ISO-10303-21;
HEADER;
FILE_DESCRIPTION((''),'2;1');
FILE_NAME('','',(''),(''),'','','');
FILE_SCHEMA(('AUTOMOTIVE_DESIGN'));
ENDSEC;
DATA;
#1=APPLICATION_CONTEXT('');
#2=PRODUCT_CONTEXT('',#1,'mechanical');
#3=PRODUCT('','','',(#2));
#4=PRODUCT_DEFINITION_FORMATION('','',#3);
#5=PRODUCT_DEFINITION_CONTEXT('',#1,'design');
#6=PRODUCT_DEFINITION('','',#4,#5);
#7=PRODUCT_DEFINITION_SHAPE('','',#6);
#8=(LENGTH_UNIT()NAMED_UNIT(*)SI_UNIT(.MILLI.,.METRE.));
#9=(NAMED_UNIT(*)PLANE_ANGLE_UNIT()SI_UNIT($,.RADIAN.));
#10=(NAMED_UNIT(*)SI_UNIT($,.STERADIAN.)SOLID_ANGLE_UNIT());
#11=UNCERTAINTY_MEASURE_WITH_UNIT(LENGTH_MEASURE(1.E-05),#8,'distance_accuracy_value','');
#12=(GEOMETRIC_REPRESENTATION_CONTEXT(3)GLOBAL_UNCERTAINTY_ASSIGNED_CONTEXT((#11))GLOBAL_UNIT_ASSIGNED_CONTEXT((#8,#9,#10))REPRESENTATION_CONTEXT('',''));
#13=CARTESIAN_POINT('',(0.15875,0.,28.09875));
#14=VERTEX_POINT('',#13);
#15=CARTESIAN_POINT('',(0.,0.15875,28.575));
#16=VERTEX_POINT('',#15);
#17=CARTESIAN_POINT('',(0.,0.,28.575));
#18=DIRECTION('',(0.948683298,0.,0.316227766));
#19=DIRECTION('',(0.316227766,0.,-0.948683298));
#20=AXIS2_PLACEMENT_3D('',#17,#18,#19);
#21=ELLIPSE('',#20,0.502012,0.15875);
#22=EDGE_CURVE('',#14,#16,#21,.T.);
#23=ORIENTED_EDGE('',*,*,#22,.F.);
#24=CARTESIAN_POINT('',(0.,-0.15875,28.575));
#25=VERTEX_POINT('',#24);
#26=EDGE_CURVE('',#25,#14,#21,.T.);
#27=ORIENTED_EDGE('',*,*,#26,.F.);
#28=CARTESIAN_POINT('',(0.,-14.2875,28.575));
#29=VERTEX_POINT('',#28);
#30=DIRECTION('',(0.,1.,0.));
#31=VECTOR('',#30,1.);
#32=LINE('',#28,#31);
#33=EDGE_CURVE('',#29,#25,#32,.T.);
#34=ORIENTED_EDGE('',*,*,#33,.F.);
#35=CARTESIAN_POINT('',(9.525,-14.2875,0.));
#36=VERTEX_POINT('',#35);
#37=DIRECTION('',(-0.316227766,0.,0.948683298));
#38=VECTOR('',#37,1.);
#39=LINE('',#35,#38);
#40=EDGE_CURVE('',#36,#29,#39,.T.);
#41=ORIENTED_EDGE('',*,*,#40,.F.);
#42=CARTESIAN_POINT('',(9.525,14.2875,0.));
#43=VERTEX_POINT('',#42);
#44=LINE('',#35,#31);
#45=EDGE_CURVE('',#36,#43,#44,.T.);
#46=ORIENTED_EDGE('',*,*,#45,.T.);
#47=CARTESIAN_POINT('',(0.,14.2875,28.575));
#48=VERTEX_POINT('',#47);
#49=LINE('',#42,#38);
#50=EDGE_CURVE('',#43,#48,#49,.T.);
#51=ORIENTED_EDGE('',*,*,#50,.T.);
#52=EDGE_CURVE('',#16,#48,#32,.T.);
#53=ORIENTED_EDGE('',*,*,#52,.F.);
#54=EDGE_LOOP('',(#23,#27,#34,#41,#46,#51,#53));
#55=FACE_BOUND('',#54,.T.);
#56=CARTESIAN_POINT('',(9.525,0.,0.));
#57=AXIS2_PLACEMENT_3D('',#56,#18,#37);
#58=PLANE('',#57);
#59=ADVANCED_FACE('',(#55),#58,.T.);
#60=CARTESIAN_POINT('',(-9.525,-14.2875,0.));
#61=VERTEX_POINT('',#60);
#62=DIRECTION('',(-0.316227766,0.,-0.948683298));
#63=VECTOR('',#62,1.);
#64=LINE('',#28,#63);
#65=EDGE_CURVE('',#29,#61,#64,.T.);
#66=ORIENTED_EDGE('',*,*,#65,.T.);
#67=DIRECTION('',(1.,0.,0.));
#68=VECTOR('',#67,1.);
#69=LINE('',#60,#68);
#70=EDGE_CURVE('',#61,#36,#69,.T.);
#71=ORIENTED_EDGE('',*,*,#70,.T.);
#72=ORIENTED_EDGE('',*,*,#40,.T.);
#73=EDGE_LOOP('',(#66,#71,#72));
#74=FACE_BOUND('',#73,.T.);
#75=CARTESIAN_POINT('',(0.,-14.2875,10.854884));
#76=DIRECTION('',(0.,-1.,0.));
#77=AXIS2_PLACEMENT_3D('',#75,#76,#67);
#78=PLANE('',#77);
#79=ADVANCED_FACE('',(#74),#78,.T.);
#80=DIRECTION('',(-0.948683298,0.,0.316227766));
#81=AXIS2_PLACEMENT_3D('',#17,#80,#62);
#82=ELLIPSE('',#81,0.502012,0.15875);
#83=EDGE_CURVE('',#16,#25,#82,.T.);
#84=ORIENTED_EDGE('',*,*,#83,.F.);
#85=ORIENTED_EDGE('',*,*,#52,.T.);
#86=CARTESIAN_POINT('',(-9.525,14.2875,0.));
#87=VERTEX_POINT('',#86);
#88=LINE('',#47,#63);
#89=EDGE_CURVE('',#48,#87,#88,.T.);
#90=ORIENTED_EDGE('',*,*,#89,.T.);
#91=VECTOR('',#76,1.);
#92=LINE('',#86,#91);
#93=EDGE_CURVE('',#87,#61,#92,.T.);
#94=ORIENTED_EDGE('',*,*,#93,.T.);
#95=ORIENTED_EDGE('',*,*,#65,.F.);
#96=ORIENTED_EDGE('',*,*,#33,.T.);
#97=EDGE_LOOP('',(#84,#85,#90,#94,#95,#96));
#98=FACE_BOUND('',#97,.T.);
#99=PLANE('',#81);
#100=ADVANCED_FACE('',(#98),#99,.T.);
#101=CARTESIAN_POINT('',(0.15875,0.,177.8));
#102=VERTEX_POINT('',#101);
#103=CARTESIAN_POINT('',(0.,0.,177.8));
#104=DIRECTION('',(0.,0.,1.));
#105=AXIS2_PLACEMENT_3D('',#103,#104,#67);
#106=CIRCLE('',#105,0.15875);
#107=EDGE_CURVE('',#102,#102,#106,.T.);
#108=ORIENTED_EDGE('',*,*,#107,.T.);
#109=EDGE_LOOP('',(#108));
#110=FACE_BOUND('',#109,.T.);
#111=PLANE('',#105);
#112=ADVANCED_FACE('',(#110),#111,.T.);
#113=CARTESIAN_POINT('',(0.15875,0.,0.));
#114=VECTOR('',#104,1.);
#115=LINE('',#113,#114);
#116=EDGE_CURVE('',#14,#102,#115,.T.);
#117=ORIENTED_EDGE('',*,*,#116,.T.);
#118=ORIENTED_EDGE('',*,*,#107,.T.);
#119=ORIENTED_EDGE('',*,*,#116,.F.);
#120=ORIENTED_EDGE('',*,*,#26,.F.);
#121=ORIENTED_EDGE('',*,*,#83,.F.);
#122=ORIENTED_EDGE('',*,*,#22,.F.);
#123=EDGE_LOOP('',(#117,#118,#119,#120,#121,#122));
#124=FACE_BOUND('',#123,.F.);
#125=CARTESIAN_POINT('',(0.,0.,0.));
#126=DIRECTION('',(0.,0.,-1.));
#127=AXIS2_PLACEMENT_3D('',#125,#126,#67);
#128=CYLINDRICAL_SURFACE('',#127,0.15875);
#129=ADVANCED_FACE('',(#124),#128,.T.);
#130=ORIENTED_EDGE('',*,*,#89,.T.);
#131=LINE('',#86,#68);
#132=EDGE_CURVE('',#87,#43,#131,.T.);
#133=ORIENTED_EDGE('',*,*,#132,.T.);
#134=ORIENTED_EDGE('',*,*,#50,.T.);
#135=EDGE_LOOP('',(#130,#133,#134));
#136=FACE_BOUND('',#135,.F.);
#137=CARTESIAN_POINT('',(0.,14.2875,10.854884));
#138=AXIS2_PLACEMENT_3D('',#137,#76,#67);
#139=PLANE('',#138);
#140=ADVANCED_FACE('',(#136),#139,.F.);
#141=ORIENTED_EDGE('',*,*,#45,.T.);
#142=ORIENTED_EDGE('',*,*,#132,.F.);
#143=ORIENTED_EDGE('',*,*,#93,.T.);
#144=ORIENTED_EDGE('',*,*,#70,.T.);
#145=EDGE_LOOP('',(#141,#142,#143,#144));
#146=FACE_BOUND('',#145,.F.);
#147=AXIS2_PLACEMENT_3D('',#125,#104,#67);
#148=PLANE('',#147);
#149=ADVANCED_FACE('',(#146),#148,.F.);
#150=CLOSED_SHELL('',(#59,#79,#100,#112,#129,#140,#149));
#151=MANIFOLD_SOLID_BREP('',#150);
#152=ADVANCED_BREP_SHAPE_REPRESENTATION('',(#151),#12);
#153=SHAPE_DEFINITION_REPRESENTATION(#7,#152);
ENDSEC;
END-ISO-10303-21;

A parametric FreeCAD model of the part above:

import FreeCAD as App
import Part
import Sketcher

V = App.Vector
Q = App.Units.Quantity

doc = App.newDocument("Part")
body = doc.addObject("PartDesign::Body", "Body")

# Sketch on XZ plane
sketch1 = body.newObject("Sketcher::SketchObject", "Sketch")
sketch1.AttachmentSupport = (doc.getObject("XZ_Plane"), [""])
sketch1.MapMode = "FlatFace"
sketch1.addGeometry([
    Part.LineSegment(V(0, 28.575, 0), V(-9.525, 0, 0)),
    Part.LineSegment(V(-9.525, 0, 0), V(9.525, 0, 0)),
    Part.LineSegment(V(9.525, 0, 0), V(0, 28.575, 0)),
], False)
sketch1.addConstraint([
    Sketcher.Constraint("Coincident", 0, 2, 1, 1),
    Sketcher.Constraint("Coincident", 1, 2, 2, 1),
    Sketcher.Constraint("Coincident", 2, 2, 0, 1),
    Sketcher.Constraint("Horizontal", 1),
    Sketcher.Constraint("Symmetric", 0, 2, 1, 2, -1, 1),
    Sketcher.Constraint("PointOnObject", 2, 2, -2),
    Sketcher.Constraint("DistanceX", 1, 1, 1, 2, Q("0.75 in")),
    Sketcher.Constraint("DistanceY", -1, 1, 2, 2, Q("1.125 in")),
])
pad1 = body.newObject("PartDesign::Pad", "Pad")
pad1.Profile = sketch1
pad1.Length = Q("1.125 in")
pad1.Midplane = True

# Sketch on XY plane
sketch2 = body.newObject("Sketcher::SketchObject", "Sketch001")
sketch2.AttachmentSupport = (doc.getObject("XY_Plane"), [""])
sketch2.MapMode = "FlatFace"
sketch2.addGeometry(Part.Circle(V(0, 0, 0), V(0, 0, 1), 0.15875), False)
sketch2.addConstraint([
    Sketcher.Constraint("Coincident", 0, 3, -1, 1),
    Sketcher.Constraint("Diameter", 0, Q("0.0125 in")),
])
pad2 = body.newObject("PartDesign::Pad", "Pad001")
pad2.Profile = sketch2
pad2.Length = Q("7 in")

doc.recompute()
